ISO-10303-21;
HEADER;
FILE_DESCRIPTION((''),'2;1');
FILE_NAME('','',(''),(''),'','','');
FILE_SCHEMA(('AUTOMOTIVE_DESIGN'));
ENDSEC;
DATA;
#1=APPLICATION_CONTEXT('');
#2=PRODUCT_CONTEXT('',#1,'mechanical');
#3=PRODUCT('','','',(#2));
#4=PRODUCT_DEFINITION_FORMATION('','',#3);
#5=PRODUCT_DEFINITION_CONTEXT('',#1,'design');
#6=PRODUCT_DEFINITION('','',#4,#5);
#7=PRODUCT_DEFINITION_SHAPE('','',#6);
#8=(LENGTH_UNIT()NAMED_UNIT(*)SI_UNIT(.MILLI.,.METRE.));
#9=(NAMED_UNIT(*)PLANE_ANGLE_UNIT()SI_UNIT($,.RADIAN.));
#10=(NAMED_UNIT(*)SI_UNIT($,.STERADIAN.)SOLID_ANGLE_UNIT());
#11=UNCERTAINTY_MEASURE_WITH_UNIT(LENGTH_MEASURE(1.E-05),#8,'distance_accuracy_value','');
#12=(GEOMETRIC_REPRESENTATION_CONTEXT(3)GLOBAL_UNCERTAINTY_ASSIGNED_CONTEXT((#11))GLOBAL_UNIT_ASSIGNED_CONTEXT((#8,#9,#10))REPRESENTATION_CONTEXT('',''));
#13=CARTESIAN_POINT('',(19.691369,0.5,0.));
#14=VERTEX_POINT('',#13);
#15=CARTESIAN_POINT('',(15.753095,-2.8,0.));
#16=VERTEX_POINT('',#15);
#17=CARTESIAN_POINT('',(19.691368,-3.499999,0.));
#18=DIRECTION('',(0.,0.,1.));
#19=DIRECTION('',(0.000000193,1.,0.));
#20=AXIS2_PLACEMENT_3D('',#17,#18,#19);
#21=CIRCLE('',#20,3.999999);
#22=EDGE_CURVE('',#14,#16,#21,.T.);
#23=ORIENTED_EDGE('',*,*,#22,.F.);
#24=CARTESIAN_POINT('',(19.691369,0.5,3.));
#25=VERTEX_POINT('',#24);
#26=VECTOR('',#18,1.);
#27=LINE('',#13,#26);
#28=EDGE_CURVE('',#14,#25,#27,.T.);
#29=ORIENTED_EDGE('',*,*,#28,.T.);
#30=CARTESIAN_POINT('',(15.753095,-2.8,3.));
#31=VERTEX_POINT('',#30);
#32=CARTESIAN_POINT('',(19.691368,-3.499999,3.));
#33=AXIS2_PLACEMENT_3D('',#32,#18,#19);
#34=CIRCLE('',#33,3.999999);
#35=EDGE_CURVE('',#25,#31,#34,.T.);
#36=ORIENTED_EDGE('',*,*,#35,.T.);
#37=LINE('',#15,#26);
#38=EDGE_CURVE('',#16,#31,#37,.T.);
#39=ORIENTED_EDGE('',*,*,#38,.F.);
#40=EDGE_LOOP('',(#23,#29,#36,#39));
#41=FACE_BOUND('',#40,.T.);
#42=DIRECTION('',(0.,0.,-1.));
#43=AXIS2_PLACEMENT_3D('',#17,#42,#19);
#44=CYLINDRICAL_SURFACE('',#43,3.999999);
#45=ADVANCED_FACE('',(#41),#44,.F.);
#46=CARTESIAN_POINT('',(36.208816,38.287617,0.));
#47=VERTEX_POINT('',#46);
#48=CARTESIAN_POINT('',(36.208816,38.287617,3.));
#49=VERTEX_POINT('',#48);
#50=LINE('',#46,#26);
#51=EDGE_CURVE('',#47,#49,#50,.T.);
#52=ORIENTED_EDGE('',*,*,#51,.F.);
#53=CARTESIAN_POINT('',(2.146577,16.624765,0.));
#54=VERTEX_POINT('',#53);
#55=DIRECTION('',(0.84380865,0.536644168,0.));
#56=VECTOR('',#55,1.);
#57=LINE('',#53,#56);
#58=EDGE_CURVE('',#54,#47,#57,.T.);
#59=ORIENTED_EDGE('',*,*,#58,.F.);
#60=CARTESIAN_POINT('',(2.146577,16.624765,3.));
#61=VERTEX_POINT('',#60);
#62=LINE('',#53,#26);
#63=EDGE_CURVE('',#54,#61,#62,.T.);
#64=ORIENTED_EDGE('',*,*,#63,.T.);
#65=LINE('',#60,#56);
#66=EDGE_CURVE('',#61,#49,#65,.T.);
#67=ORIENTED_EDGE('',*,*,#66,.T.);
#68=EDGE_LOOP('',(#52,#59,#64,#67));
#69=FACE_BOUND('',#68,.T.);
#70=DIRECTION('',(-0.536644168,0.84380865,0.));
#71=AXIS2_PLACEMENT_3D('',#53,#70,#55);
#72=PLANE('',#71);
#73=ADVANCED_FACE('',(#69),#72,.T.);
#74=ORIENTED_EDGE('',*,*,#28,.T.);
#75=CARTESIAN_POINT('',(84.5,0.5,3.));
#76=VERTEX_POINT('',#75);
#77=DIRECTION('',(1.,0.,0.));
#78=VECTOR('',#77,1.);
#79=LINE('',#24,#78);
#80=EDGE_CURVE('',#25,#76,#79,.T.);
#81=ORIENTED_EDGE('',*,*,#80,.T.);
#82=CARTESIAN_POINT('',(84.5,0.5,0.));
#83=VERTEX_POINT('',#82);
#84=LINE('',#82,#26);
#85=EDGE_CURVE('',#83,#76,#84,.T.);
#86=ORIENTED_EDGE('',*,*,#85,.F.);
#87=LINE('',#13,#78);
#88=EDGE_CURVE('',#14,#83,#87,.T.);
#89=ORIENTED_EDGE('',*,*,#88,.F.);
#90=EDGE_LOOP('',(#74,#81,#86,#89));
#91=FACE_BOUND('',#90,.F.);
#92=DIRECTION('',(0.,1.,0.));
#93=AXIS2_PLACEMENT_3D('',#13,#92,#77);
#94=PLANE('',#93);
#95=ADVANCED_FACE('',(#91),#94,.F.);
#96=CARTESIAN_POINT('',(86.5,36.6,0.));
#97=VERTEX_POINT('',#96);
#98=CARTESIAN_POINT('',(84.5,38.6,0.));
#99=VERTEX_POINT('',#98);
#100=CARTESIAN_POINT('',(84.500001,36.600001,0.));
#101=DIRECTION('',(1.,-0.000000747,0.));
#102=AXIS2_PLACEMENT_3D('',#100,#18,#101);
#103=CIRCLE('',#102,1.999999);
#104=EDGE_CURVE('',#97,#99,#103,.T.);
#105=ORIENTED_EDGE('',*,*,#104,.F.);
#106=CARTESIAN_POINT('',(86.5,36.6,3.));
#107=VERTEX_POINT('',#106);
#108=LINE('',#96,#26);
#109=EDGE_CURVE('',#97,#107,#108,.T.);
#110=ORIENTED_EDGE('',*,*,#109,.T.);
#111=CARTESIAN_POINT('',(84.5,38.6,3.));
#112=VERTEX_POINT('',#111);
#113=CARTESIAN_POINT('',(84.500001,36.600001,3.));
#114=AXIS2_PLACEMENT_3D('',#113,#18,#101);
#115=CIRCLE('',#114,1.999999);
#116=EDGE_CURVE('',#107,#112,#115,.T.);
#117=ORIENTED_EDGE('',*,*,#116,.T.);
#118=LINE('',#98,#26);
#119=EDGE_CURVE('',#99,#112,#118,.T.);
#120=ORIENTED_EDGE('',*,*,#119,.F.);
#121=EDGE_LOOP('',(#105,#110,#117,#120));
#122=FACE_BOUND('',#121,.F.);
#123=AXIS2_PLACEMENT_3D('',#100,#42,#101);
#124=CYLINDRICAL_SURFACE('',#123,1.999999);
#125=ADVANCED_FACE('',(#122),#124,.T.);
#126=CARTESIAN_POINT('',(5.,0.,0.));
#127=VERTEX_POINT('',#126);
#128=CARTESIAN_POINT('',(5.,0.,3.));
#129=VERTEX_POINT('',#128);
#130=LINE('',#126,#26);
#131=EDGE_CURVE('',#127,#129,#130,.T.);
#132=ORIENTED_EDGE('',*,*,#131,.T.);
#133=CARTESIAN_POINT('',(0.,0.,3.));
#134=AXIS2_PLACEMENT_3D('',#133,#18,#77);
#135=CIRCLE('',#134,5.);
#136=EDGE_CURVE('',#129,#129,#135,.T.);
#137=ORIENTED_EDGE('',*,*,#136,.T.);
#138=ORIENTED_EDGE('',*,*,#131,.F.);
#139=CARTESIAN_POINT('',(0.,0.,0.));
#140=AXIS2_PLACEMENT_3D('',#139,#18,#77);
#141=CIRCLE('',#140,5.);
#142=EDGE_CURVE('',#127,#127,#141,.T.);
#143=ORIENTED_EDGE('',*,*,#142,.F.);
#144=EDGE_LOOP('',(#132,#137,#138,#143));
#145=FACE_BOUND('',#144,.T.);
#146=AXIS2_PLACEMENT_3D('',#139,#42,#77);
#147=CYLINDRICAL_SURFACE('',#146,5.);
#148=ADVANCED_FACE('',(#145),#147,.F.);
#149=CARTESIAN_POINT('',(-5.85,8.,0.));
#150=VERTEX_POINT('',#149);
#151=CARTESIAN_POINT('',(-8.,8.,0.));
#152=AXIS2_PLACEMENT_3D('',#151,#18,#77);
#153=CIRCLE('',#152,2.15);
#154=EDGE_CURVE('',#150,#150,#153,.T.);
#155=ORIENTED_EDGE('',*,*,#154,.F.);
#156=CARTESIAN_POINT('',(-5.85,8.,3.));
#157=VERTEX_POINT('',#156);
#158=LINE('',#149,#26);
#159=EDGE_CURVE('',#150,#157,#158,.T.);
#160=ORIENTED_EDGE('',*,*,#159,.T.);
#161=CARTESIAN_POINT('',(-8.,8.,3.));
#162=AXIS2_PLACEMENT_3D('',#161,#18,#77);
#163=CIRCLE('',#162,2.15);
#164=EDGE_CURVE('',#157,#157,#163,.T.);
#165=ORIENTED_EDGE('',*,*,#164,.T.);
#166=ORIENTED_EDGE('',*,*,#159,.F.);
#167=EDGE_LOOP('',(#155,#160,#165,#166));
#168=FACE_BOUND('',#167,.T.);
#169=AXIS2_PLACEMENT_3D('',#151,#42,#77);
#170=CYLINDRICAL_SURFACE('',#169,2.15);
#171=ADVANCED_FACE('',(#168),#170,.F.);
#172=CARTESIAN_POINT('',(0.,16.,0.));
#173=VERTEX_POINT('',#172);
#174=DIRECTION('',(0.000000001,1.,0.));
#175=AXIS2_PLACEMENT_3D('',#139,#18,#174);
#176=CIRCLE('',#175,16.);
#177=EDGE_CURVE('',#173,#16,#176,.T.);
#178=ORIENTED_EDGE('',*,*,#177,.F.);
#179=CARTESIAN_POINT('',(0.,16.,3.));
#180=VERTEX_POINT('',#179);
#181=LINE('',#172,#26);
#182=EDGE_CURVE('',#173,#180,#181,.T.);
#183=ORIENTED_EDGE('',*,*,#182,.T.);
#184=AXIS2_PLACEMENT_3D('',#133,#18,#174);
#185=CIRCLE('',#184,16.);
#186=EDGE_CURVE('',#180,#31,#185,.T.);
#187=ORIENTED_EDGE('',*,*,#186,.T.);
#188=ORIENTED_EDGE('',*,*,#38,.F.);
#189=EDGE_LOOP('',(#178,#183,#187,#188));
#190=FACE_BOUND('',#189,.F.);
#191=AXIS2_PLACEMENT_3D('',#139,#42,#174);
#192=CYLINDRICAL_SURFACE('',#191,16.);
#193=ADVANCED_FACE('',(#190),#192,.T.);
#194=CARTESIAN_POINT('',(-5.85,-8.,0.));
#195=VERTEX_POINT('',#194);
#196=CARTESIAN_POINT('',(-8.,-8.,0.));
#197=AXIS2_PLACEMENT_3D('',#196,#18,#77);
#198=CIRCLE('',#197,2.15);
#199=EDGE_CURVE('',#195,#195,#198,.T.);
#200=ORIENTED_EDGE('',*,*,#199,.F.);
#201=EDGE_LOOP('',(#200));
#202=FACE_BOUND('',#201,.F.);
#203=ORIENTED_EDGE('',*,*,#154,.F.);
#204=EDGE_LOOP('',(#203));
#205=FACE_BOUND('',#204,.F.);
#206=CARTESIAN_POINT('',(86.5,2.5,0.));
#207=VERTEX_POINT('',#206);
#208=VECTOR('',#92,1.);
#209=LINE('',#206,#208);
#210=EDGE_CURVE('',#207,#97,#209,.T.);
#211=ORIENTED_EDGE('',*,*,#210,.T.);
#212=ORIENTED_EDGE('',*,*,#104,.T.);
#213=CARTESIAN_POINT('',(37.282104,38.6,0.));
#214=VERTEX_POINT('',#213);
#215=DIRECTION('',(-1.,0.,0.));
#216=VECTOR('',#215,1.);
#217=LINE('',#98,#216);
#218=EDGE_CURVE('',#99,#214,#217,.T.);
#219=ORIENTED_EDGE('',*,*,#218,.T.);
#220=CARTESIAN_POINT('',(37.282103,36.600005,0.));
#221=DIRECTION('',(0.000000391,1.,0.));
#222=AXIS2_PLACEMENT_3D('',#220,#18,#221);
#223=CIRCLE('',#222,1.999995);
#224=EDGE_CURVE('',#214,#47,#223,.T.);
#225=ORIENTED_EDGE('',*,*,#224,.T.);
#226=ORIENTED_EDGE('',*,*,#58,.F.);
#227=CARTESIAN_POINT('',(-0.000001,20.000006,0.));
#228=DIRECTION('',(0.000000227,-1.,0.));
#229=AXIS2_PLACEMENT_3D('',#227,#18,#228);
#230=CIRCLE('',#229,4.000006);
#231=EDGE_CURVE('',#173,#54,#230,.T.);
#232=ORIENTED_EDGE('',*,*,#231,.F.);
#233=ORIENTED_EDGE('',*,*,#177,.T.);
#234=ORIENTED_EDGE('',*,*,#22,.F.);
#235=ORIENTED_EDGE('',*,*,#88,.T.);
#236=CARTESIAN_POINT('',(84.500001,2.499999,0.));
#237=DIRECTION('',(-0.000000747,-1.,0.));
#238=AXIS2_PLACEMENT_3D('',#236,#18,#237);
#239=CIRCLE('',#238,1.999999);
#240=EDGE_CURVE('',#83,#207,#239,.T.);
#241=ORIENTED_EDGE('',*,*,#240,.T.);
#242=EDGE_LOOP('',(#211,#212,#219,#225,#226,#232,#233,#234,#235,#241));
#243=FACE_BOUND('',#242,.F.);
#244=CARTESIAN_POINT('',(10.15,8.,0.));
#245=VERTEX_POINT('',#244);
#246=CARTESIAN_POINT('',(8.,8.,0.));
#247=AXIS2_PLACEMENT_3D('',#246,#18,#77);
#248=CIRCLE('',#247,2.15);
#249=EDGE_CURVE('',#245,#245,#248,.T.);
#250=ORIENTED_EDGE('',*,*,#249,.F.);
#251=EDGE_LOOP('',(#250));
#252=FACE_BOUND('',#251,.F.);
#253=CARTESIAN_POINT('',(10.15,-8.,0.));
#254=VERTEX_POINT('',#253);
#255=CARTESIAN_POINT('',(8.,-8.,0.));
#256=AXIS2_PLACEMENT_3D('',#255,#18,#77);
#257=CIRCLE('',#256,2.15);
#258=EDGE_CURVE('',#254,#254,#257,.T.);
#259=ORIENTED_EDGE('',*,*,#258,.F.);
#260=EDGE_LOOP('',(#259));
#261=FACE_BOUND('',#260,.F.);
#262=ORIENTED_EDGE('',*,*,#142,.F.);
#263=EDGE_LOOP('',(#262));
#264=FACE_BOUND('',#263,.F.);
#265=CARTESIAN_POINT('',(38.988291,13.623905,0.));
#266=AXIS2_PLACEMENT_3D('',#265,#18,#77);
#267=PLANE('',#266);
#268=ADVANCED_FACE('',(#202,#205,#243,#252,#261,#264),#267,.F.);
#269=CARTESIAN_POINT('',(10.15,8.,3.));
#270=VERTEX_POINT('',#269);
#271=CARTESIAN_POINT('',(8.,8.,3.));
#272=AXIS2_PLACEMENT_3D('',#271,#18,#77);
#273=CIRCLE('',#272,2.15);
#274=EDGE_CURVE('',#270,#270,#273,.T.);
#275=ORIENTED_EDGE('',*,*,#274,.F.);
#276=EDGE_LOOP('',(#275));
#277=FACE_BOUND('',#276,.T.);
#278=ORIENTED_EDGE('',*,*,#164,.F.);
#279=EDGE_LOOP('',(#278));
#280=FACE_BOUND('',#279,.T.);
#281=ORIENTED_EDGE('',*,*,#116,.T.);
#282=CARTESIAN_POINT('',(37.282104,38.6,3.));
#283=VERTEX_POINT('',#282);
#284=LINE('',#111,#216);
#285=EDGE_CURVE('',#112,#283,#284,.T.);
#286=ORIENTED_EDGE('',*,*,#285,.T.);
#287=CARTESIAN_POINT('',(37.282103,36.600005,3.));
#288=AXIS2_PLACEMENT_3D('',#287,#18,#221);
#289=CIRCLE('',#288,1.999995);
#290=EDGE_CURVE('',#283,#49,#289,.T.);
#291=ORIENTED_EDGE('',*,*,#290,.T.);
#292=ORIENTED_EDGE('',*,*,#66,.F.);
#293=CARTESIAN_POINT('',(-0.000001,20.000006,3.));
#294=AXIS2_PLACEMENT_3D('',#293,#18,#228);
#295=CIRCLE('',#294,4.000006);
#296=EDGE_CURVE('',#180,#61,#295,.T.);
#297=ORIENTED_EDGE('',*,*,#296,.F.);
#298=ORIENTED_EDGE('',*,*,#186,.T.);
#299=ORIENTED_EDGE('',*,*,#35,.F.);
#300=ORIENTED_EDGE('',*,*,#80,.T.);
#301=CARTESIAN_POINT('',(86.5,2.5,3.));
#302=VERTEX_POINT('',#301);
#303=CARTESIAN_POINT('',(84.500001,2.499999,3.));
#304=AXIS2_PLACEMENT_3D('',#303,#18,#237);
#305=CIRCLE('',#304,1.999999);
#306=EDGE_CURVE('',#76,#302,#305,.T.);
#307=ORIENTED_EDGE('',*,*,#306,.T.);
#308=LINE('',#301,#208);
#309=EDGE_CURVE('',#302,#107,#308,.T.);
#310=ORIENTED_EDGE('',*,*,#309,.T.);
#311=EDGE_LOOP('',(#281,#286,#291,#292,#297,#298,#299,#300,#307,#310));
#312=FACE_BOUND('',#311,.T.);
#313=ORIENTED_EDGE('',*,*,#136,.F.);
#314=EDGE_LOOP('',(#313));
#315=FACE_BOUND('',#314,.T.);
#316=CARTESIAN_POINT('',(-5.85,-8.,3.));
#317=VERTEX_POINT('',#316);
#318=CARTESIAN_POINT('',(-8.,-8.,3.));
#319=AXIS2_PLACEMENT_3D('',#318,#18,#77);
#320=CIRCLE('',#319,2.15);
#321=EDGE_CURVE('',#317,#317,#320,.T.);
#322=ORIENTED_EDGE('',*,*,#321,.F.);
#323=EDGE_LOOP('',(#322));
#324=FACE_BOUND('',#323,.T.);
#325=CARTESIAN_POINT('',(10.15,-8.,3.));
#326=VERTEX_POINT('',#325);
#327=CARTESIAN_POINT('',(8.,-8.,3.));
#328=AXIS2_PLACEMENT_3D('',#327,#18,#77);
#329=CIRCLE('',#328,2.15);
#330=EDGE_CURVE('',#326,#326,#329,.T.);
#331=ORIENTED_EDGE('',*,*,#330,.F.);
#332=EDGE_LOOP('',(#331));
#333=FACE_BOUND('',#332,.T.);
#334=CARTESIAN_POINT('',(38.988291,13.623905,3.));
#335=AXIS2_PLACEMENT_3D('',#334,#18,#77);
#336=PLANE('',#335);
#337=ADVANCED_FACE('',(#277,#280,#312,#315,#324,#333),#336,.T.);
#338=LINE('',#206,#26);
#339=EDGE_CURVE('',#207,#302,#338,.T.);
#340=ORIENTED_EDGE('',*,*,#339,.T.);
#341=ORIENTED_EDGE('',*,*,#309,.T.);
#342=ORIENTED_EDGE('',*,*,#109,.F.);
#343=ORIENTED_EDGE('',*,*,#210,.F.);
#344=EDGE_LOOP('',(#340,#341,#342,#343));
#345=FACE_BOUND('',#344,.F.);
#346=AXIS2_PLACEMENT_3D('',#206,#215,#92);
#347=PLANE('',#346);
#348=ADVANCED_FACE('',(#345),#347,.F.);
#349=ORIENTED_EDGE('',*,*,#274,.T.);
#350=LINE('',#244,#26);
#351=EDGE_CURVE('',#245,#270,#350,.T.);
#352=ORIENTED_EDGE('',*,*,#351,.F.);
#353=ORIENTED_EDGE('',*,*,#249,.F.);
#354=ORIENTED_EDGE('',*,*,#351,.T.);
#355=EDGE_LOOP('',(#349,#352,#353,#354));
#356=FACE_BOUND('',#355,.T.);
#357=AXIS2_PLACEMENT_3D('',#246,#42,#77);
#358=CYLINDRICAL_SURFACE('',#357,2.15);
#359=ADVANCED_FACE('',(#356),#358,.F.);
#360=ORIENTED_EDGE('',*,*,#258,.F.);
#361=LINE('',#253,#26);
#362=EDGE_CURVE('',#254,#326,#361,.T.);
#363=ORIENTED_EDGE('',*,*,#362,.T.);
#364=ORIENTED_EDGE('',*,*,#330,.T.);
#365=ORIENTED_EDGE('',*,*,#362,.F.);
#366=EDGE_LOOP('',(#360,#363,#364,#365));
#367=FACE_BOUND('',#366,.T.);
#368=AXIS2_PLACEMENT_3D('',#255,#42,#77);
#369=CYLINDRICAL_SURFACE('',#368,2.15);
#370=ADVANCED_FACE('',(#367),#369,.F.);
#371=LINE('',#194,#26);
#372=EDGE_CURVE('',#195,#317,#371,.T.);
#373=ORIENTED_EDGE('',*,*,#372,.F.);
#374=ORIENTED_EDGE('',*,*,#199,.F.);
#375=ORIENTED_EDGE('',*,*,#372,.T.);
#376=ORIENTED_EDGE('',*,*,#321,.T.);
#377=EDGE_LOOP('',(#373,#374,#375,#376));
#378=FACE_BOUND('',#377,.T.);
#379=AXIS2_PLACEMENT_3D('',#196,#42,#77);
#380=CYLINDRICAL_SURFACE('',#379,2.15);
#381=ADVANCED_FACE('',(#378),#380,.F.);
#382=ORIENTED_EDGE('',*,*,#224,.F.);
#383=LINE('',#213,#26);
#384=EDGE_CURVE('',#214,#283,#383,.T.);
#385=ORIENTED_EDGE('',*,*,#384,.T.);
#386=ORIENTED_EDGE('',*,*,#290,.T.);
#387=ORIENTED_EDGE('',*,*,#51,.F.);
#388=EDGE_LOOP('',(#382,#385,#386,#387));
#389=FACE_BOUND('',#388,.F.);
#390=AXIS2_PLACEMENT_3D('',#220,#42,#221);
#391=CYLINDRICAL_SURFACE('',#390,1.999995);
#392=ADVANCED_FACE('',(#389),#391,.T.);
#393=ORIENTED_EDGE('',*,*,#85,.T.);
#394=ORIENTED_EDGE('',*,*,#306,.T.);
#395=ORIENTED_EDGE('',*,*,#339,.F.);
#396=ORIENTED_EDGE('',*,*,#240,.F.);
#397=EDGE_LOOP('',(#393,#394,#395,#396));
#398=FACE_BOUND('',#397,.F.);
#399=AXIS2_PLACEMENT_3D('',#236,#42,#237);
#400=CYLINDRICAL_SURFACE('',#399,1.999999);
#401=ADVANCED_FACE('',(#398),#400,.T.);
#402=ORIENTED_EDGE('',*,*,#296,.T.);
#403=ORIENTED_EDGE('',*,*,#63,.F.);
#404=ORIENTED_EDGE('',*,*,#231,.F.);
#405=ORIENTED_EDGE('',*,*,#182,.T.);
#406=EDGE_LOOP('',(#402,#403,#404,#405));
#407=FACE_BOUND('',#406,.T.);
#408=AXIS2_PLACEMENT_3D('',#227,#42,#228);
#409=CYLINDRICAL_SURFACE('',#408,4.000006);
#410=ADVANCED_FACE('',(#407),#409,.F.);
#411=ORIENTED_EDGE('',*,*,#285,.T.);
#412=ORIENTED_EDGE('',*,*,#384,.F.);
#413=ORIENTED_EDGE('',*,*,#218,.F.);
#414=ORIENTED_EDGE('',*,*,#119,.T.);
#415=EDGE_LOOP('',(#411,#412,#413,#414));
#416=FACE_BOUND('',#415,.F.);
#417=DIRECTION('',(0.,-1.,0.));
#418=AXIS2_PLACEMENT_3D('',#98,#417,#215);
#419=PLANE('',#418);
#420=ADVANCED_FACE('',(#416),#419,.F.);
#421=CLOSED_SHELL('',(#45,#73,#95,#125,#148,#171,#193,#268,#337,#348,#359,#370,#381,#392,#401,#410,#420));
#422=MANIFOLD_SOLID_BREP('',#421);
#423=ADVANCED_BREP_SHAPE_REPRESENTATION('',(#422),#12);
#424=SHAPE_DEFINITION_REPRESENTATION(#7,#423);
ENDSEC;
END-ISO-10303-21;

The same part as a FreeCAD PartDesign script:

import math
import FreeCAD as App
import Part
import Sketcher

doc = App.newDocument("Part")
params = doc.addObject("Spreadsheet::Sheet", "Params")
for row, (alias, value) in enumerate([
    ("sketch1_diameter", "10 mm"),
    ("sketch1_radius", "1.999999 mm"),
    ("sketch1_radius2", "16 mm"),
    ("sketch1_radius3", "3.999999 mm"),
    ("sketch1_diameter2", "4.3 mm"),
    ("pad1_length", "3 mm"),
], start=1):
    params.set(f"A{row}", alias)
    params.set(f"B{row}", "=" + value)
    params.setAlias(f"B{row}", alias)

body = doc.addObject("PartDesign::Body", "Body")

# Sketch on XY plane
sketch1 = doc.addObject("Sketcher::SketchObject", "Sketch")
body.addObject(sketch1)
sketch1.AttachmentSupport = (doc.XY_Plane, [""])
sketch1.MapMode = "FlatFace"
sketch1.addGeometry(Part.ArcOfCircle(Part.Circle(App.Vector(84.5, 2.5, 0), App.Vector(0, 0, 1), 2), math.radians(-90), math.radians(0)), False)
sketch1.addGeometry(Part.LineSegment(App.Vector(86.5, 2.5, 0), App.Vector(86.5, 36.6, 0)), False)
sketch1.addGeometry(Part.ArcOfCircle(Part.Circle(App.Vector(84.5, 36.6, 0), App.Vector(0, 0, 1), 2), math.radians(0), math.radians(90)), False)
sketch1.addGeometry(Part.LineSegment(App.Vector(84.5, 38.6, 0), App.Vector(37.3, 38.6, 0)), False)
sketch1.addGeometry(Part.ArcOfCircle(Part.Circle(App.Vector(37.3, 36.6, 0), App.Vector(0, 0, 1), 2), math.radians(90), math.radians(122)), False)
sketch1.addGeometry(Part.LineSegment(App.Vector(36.2, 38.3, 0), App.Vector(2.1, 16.6, 0)), False)
sketch1.addGeometry(Part.ArcOfCircle(Part.Circle(App.Vector(0, 20, 0), App.Vector(0, 0, 1), 4), math.radians(-90), math.radians(-58)), False)
sketch1.addGeometry(Part.ArcOfCircle(Part.Circle(App.Vector(0, 0, 0), App.Vector(0, 0, 1), 16), math.radians(90), math.radians(350)), False)
sketch1.addGeometry(Part.ArcOfCircle(Part.Circle(App.Vector(19.7, -3.5, 0), App.Vector(0, 0, 1), 4), math.radians(90), math.radians(170)), False)
sketch1.addGeometry(Part.LineSegment(App.Vector(19.7, 0.5, 0), App.Vector(84.5, 0.5, 0)), False)
sketch1.addGeometry(Part.Circle(App.Vector(-8, -8, 0), App.Vector(0, 0, 1), 2.1), False)
sketch1.addGeometry(Part.Circle(App.Vector(8, -8, 0), App.Vector(0, 0, 1), 2.1), False)
sketch1.addGeometry(Part.Circle(App.Vector(-8, 8, 0), App.Vector(0, 0, 1), 2.1), False)
sketch1.addGeometry(Part.Circle(App.Vector(0, 0, 0), App.Vector(0, 0, 1), 5), False)
sketch1.addGeometry(Part.Circle(App.Vector(8, 8, 0), App.Vector(0, 0, 1), 2.1), False)
sketch1.addConstraint(Sketcher.Constraint("Tangent", 0, 2, 1, 1))
sketch1.addConstraint(Sketcher.Constraint("Tangent", 1, 2, 2, 1))
sketch1.addConstraint(Sketcher.Constraint("Tangent", 2, 2, 3, 1))
sketch1.addConstraint(Sketcher.Constraint("Tangent", 3, 2, 4, 1))
sketch1.addConstraint(Sketcher.Constraint("Tangent", 4, 2, 5, 1))
sketch1.addConstraint(Sketcher.Constraint("Tangent", 5, 2, 6, 2))
sketch1.addConstraint(Sketcher.Constraint("Tangent", 6, 1, 7, 1))
sketch1.addConstraint(Sketcher.Constraint("Tangent", 7, 2, 8, 2))
sketch1.addConstraint(Sketcher.Constraint("Tangent", 8, 1, 9, 1))
sketch1.addConstraint(Sketcher.Constraint("Tangent", 9, 2, 0, 1))
sketch1.addConstraint(Sketcher.Constraint("Vertical", 1))
sketch1.addConstraint(Sketcher.Constraint("Horizontal", 3))
sketch1.addConstraint(Sketcher.Constraint("Horizontal", 9))
sketch1.addConstraint(Sketcher.Constraint("Coincident", 7, 3, -1, 1))
sketch1.addConstraint(Sketcher.Constraint("Coincident", 13, 3, -1, 1))
sketch1.addConstraint(Sketcher.Constraint("Equal", 0, 2))
sketch1.addConstraint(Sketcher.Constraint("Equal", 10, 11))
sketch1.addConstraint(Sketcher.Constraint("Equal", 11, 12))
sketch1.addConstraint(Sketcher.Constraint("Equal", 12, 14))
sketch1.addConstraint(Sketcher.Constraint("Symmetric", 11, 3, 12, 3, -1, 1))
sketch1.addConstraint(Sketcher.Constraint("Symmetric", 10, 3, 14, 3, -1, 1))
sketch1.addConstraint(Sketcher.Constraint("Symmetric", 10, 3, 11, 3, -2))
sketch1.addConstraint(Sketcher.Constraint("PointOnObject", 6, 3, -2))
sketch1.addConstraint(Sketcher.Constraint("Diameter", 13, 10.0))
sketch1.addConstraint(Sketcher.Constraint("Radius", 0, 1.999999))
sketch1.addConstraint(Sketcher.Constraint("Radius", 7, 16.0))
sketch1.addConstraint(Sketcher.Constraint("Radius", 8, 3.999999))
sketch1.addConstraint(Sketcher.Constraint("Diameter", 10, 4.3))
sketch1.addConstraint(Sketcher.Constraint("DistanceY", 1, 1, 1, 2, 34.1))
sketch1.addConstraint(Sketcher.Constraint("DistanceX", 10, 3, -1, 1, 8.0))
sketch1.addConstraint(Sketcher.Constraint("DistanceY", 10, 3, -1, 1, 8.0))
sketch1.addConstraint(Sketcher.Constraint("DistanceX", -1, 1, 0, 3, 84.500001))
sketch1.addConstraint(Sketcher.Constraint("DistanceY", -1, 1, 0, 3, 2.499999))
sketch1.addConstraint(Sketcher.Constraint("DistanceY", 6, 3, 4, 3, 16.599999))
sketch1.addConstraint(Sketcher.Constraint("Radius", 4, 1.999995))
sketch1.addConstraint(Sketcher.Constraint("DistanceX", 4, 3, 2, 3, 47.217898))
sketch1.setExpression("Constraints[23]", "Params.sketch1_diameter")
sketch1.setExpression("Constraints[24]", "Params.sketch1_radius")
sketch1.setExpression("Constraints[25]", "Params.sketch1_radius2")
sketch1.setExpression("Constraints[26]", "Params.sketch1_radius3")
sketch1.setExpression("Constraints[27]", "Params.sketch1_diameter2")
pad1 = doc.addObject("PartDesign::Pad", "Pad")
body.addObject(pad1)
pad1.Profile = sketch1
pad1.setExpression("Length", "Params.pad1_length")

doc.recompute()
